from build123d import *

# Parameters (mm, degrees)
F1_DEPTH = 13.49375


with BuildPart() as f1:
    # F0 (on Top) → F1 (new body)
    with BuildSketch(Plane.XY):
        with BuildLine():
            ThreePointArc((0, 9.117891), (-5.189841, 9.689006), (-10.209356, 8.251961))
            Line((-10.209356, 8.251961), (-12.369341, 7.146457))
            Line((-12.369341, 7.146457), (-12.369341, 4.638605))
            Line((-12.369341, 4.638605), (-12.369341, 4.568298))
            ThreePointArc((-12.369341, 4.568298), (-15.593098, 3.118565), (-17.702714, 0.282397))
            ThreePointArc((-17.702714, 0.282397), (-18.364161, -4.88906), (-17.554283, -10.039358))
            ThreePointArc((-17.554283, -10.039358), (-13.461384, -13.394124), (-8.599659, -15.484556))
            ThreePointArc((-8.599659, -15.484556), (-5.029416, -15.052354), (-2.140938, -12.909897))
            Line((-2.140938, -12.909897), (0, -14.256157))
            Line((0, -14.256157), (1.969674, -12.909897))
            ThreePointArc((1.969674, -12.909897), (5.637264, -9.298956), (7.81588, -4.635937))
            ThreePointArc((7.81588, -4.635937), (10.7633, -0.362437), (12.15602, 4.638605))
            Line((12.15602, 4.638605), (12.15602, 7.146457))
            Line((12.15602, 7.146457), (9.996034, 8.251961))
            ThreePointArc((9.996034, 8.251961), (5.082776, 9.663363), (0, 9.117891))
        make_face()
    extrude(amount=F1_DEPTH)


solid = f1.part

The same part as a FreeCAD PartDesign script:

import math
import FreeCAD as App
import Part
import Sketcher
Q = App.Units.Quantity

doc = App.newDocument("Part")
body = doc.addObject("PartDesign::Body", "Body")

sketch1 = body.newObject("Sketcher::SketchObject", "Sketch")
sketch1.AttachmentSupport = (doc.getObject("XY_Plane"), [""])
sketch1.MapMode = "FlatFace"
sketch1.addGeometry(Part.ArcOfCircle(Part.Circle(App.Vector(-4.046677, -3.788961, 0), App.Vector(0, 0, 1), 13.526361), math.radians(72.592263), math.radians(117.103877)), False)
sketch1.addGeometry(Part.LineSegment(App.Vector(-10.209356, 8.251961, 0), App.Vector(-12.369341, 7.146457, 0)), False)
sketch1.addGeometry(Part.LineSegment(App.Vector(-12.369341, 7.146457, 0), App.Vector(-12.369341, 4.568298, 0)), False)
sketch1.addGeometry(Part.ArcOfCircle(Part.Circle(App.Vector(-11.192786, -2.35718, 0), App.Vector(0, 0, 1), 7.024708), math.radians(99.641801), math.radians(157.928949)), False)
sketch1.addGeometry(Part.ArcOfCircle(Part.Circle(App.Vector(0.106167, -4.623449, 0), App.Vector(0, 0, 1), 18.472238), math.radians(164.598616), math.radians(197.049143)), False)
sketch1.addGeometry(Part.ArcOfCircle(Part.Circle(App.Vector(-3.627797, 2.777203, 0), App.Vector(0, 0, 1), 18.92647), math.radians(-137.376601), math.radians(-105.229951)), False)
sketch1.addGeometry(Part.ArcOfCircle(Part.Circle(App.Vector(-7.630635, -8.527005, 0), App.Vector(0, 0, 1), 7.024708), math.radians(-97.928952), math.radians(-38.603338)), False)
sketch1.addGeometry(Part.LineSegment(App.Vector(-2.140938, -12.909897, 0), App.Vector(0, -14.256157, 0)), False)
sketch1.addGeometry(Part.LineSegment(App.Vector(0, -14.256157, 0), App.Vector(1.969674, -12.909897, 0)), False)
sketch1.addGeometry(Part.ArcOfCircle(Part.Circle(App.Vector(-6.229204, -0.914359, 0), App.Vector(0, 0, 1), 14.529781), math.radians(-55.647627), math.radians(-14.840819)), False)
sketch1.addGeometry(Part.ArcOfCircle(Part.Circle(App.Vector(-3.457163, 6.29221, 0), App.Vector(0, 0, 1), 15.700506), math.radians(-44.10998), math.radians(-6.045704)), False)
sketch1.addGeometry(Part.LineSegment(App.Vector(12.15602, 4.638605, 0), App.Vector(12.15602, 7.146457, 0)), False)
sketch1.addGeometry(Part.LineSegment(App.Vector(12.15602, 7.146457, 0), App.Vector(9.996034, 8.251961, 0)), False)
sketch1.addGeometry(Part.ArcOfCircle(Part.Circle(App.Vector(3.934568, -3.591202, 0), App.Vector(0, 0, 1), 13.304205), math.radians(62.896117), math.radians(107.201839)), False)
sketch1.addConstraint(Sketcher.Constraint("Tangent", 0, 2, 1, 1))
sketch1.addConstraint(Sketcher.Constraint("Coincident", 1, 2, 2, 1))
sketch1.addConstraint(Sketcher.Constraint("Coincident", 2, 2, 3, 1))
sketch1.addConstraint(Sketcher.Constraint("Coincident", 3, 2, 4, 1))
sketch1.addConstraint(Sketcher.Constraint("Coincident", 4, 2, 5, 1))
sketch1.addConstraint(Sketcher.Constraint("Coincident", 5, 2, 6, 1))
sketch1.addConstraint(Sketcher.Constraint("Coincident", 6, 2, 7, 1))
sketch1.addConstraint(Sketcher.Constraint("Coincident", 7, 2, 8, 1))
sketch1.addConstraint(Sketcher.Constraint("Tangent", 8, 2, 9, 1))
sketch1.addConstraint(Sketcher.Constraint("Coincident", 9, 2, 10, 1))
sketch1.addConstraint(Sketcher.Constraint("Coincident", 10, 2, 11, 1))
sketch1.addConstraint(Sketcher.Constraint("Coincident", 11, 2, 12, 1))
sketch1.addConstraint(Sketcher.Constraint("Tangent", 12, 2, 13, 1))
sketch1.addConstraint(Sketcher.Constraint("Coincident", 13, 2, 0, 1))
sketch1.addConstraint(Sketcher.Constraint("Vertical", 2))
sketch1.addConstraint(Sketcher.Constraint("Vertical", 11))
sketch1.addConstraint(Sketcher.Constraint("Equal", 3, 6))
sketch1.addConstraint(Sketcher.Constraint("PointOnObject", 7, 2, -2))
sketch1.addConstraint(Sketcher.Constraint("PointOnObject", 13, 2, -2))
sketch1.addConstraint(Sketcher.Constraint("Horizontal", 6, 2, 8, 2))
sketch1.addConstraint(Sketcher.Constraint("Horizontal", 1, 2, 11, 2))
sketch1.addConstraint(Sketcher.Constraint("Horizontal", 0, 2, 12, 2))
sketch1.addConstraint(Sketcher.Constraint("Equal", 1, 12))
sketch1.addConstraint(Sketcher.Constraint("Radius", 0, Q("13.526361 mm")))
sketch1.addConstraint(Sketcher.Constraint("Radius", 3, Q("7.024708 mm")))
sketch1.addConstraint(Sketcher.Constraint("Radius", 5, Q("18.92647 mm")))
sketch1.addConstraint(Sketcher.Constraint("Radius", 9, Q("14.529781 mm")))
sketch1.addConstraint(Sketcher.Constraint("Radius", 4, Q("18.472238 mm")))
sketch1.addConstraint(Sketcher.Constraint("Radius", 10, Q("15.700506 mm")))
sketch1.addConstraint(Sketcher.Constraint("Radius", 13, Q("13.304205 mm")))
sketch1.addConstraint(Sketcher.Constraint("DistanceY", 2, 2, 2, 1, Q("2.578159 mm")))
sketch1.addConstraint(Sketcher.Constraint("DistanceY", 11, 1, 11, 2, Q("2.507852 mm")))
sketch1.addConstraint(Sketcher.Constraint("DistanceY", -1, 1, 2, 2, Q("4.568298 mm")))
sketch1.addConstraint(Sketcher.Constraint("DistanceX", 4, 3, 13, 3, Q("3.828401 mm")))
sketch1.addConstraint(Sketcher.Constraint("DistanceY", 3, 2, 2, 2, Q("4.285901 mm")))
sketch1.addConstraint(Sketcher.Constraint("DistanceY", 4, 2, 9, 3, Q("9.124999 mm")))
sketch1.addConstraint(Sketcher.Constraint("DistanceY", 5, 2, 7, 2, Q("1.228399 mm")))
sketch1.addConstraint(Sketcher.Constraint("DistanceY", 5, 3, 10, 2, Q("1.861402 mm")))
sketch1.addConstraint(Sketcher.Constraint("DistanceY", 0, 3, -1, 1, Q("3.788961 mm")))
sketch1.addConstraint(Sketcher.Constraint("DistanceY", 3, 3, -1, 1, Q("2.35718 mm")))
sketch1.addConstraint(Sketcher.Constraint("DistanceY", 4, 3, -1, 1, Q("4.623449 mm")))
sketch1.addConstraint(Sketcher.Constraint("DistanceY", 9, 3, -1, 1, Q("0.914359 mm")))
sketch1.addConstraint(Sketcher.Constraint("DistanceY", -1, 1, 10, 3, Q("6.29221 mm")))
sketch1.addConstraint(Sketcher.Constraint("DistanceX", -1, 1, 13, 3, Q("3.934568 mm")))
sketch1.addConstraint(Sketcher.Constraint("DistanceX", 5, 2, -1, 1, Q("8.599659 mm")))
sketch1.addConstraint(Sketcher.Constraint("DistanceX", 6, 2, -1, 1, Q("2.140938 mm")))
sketch1.addConstraint(Sketcher.Constraint("DistanceX", -1, 1, 9, 2, Q("7.81588 mm")))
pad1 = body.newObject("PartDesign::Pad", "Pad")
pad1.Profile = sketch1
pad1.Length = Q("0.53125 in")

doc.recompute()
